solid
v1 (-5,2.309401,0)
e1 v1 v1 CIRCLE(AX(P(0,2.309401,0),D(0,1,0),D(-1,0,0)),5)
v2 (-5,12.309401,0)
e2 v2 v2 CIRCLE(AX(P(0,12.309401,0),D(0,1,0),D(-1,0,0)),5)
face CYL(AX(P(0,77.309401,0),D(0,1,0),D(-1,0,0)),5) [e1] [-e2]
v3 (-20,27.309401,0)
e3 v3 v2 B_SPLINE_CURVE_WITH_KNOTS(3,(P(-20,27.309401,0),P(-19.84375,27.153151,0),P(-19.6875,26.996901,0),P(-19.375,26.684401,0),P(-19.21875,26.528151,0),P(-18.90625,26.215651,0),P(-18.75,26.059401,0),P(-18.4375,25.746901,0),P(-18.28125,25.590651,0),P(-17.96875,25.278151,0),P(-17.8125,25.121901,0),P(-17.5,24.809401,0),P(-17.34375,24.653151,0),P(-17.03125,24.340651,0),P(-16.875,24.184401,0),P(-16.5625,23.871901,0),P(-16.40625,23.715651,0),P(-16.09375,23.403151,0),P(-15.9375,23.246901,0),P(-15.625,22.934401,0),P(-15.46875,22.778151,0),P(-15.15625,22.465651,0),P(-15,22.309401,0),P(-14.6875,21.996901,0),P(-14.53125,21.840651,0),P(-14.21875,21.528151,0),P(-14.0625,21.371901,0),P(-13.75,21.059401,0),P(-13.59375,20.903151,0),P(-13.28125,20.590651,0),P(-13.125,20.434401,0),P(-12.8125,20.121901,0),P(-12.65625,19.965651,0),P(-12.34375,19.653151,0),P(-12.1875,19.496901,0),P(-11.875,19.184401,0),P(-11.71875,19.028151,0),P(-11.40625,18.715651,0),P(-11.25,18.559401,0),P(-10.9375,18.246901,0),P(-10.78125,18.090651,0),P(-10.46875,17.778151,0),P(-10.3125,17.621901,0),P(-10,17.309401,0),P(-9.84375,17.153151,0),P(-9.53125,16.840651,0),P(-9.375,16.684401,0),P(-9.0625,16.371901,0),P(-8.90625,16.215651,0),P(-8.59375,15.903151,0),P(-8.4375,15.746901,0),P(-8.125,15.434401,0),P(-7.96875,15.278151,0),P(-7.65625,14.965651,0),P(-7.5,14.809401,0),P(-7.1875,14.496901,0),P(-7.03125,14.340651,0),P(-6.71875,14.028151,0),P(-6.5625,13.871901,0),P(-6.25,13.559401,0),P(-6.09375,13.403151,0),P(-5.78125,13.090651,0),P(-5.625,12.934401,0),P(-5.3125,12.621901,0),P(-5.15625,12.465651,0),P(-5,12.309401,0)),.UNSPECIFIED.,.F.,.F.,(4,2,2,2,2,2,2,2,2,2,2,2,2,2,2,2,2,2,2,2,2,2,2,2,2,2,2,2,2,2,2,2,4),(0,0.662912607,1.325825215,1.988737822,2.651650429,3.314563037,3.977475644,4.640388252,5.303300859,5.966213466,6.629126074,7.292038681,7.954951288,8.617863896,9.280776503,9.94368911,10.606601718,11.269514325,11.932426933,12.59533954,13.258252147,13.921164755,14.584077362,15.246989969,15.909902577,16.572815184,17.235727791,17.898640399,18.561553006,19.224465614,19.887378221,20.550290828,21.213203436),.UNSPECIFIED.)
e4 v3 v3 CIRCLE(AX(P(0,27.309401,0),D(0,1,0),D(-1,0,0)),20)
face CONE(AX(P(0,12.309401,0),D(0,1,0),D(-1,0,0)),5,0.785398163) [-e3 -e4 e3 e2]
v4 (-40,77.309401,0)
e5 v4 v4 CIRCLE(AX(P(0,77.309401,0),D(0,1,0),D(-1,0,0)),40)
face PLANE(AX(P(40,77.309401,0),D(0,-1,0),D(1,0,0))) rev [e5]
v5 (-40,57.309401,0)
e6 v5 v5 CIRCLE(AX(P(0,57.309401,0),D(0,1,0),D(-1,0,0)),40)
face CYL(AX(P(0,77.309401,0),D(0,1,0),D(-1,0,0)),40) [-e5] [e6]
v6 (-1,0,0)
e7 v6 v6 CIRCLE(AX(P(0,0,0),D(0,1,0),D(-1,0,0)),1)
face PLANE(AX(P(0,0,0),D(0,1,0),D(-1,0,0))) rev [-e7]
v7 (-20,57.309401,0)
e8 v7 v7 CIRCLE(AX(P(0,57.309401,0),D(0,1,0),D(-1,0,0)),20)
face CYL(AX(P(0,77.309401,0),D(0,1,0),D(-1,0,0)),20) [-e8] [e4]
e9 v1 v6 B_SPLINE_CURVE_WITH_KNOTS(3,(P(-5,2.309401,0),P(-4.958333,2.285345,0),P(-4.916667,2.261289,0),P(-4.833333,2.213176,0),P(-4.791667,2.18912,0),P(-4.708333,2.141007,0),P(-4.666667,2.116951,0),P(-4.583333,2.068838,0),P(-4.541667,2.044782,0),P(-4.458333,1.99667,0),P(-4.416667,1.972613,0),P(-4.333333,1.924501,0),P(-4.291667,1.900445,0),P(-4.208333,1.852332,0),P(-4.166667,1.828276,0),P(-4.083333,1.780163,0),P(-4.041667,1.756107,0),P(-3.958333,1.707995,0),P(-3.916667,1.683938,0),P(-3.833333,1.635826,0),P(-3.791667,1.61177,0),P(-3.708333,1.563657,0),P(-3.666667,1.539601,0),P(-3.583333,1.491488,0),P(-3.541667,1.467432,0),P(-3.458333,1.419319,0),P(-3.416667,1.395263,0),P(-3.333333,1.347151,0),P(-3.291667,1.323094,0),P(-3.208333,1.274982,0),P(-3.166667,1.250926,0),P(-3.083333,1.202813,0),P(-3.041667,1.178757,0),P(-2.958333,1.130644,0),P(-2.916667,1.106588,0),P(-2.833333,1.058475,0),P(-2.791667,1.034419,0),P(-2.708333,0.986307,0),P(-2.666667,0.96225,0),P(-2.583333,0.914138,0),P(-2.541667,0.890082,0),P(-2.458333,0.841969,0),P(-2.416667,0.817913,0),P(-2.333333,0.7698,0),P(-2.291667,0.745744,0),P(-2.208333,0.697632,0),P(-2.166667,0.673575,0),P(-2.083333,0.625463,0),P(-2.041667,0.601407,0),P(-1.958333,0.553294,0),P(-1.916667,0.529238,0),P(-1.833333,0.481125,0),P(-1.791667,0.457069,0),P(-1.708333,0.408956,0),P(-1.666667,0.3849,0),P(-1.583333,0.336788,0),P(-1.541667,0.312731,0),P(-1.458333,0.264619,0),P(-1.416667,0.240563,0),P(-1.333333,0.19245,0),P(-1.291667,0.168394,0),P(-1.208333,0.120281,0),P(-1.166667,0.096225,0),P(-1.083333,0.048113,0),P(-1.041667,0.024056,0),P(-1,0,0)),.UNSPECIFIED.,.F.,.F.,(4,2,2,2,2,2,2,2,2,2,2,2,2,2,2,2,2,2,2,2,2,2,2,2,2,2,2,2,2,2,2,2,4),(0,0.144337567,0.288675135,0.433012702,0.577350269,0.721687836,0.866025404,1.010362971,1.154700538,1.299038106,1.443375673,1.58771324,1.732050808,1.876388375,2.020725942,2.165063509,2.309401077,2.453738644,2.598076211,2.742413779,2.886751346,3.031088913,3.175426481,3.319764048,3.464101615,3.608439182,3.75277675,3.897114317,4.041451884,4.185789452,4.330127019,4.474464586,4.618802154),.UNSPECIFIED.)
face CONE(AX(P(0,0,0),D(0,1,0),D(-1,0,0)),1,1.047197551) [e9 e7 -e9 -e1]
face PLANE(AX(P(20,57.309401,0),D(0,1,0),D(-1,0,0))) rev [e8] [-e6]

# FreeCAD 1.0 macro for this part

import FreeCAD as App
import Part
import Sketcher
Q = App.Units.Quantity


def add_polygon(sketch, points):
    """Adds a closed chain of lines whose ends are joined by coincident constraints."""
    first, n = sketch.GeometryCount, len(points)
    for a, b in zip(points, points[1:] + points[:1]):
        sketch.addGeometry(Part.LineSegment(App.Vector(*a, 0), App.Vector(*b, 0)), False)
    for i in range(n):
        sketch.addConstraint(Sketcher.Constraint("Coincident", first + i, 2, first + (i + 1) % n, 1))

doc = App.newDocument("Part")
body = doc.addObject("PartDesign::Body", "Body")

# Sketch on XY plane
sketch1 = body.newObject("Sketcher::SketchObject", "Sketch")
sketch1.AttachmentSupport = (doc.getObject("XY_Plane"), [""])
sketch1.MapMode = "FlatFace"
add_polygon(sketch1, [(0, 0), (1, 0), (5, 2.309401), (5, 12.309401), (20, 27.309401), (20, 57.309401), (40, 57.309401), (40, 77.309401), (0, 77.309401)])  # lines 0-8
sketch1.addConstraint([
    Sketcher.Constraint("Horizontal", 0),
    Sketcher.Constraint("Vertical", 2),
    Sketcher.Constraint("Vertical", 4),
    Sketcher.Constraint("Horizontal", 5),
    Sketcher.Constraint("Vertical", 6),
    Sketcher.Constraint("Horizontal", 7),
    Sketcher.Constraint("Vertical", 8),
    Sketcher.Constraint("Coincident", 8, 2, -1, 1),
    Sketcher.Constraint("Equal", 5, 6),
    Sketcher.Constraint("DistanceX", 0, 1, 0, 2, Q("1 mm")),
    Sketcher.Constraint("DistanceX", 5, 1, 5, 2, Q("20 mm")),
    Sketcher.Constraint("DistanceX", 7, 2, 7, 1, Q("40 mm")),
    Sketcher.Constraint("DistanceY", 2, 1, 2, 2, Q("10 mm")),
    Sketcher.Constraint("DistanceY", 4, 1, 4, 2, Q("30 mm")),
    Sketcher.Constraint("Angle", 1, Q("30 deg")),
    Sketcher.Constraint("Angle", 3, Q("45 deg")),
    Sketcher.Constraint("DistanceX", -1, 1, 1, 2, Q("5 mm")),
])
revolution = body.newObject("PartDesign::Revolution", "Revolution")
revolution.Profile = sketch1
revolution.ReferenceAxis = (sketch1, ["V_Axis"])
revolution.Angle = 360

doc.recompute()
